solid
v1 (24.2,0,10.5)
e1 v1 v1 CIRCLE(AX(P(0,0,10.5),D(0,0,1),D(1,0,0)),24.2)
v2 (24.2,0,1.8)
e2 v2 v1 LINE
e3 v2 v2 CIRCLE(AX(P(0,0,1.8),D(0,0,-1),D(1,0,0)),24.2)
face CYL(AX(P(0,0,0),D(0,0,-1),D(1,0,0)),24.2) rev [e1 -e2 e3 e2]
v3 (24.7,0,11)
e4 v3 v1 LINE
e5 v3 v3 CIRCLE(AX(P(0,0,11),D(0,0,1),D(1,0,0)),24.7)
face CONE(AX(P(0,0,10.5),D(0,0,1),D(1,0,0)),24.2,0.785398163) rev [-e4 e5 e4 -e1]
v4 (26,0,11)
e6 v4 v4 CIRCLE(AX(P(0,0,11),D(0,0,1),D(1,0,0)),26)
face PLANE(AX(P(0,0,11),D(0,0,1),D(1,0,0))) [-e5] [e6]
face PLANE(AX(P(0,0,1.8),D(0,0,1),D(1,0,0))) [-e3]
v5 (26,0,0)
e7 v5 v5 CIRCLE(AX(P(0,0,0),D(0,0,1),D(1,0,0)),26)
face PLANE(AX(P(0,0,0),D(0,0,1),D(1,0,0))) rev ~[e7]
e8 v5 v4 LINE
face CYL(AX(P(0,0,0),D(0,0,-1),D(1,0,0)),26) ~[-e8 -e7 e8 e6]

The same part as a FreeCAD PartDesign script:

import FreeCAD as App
import Part
import Sketcher

V = App.Vector


def edges_at(feature, points):
    """Names of the edges that pass closest to the given points."""
    edges = feature.Shape.Edges
    near = lambda p: min(range(len(edges)), key=lambda i: edges[i].distToShape(Part.Vertex(*p))[0])
    return sorted({f"Edge{near(p) + 1}" for p in points})


def faces_at(feature, points):
    """Names of the faces that lie closest to the given points."""
    faces = feature.Shape.Faces
    near = lambda p: min(range(len(faces)), key=lambda i: faces[i].distToShape(Part.Vertex(*p))[0])
    return sorted({f"Face{near(p) + 1}" for p in points})

doc = App.newDocument("Part")
body = doc.addObject("PartDesign::Body", "Body")

sketch1 = doc.addObject("Sketcher::SketchObject", "Sketch")
body.addObject(sketch1)
sketch1.AttachmentSupport = (doc.XY_Plane, [""])
sketch1.MapMode = "FlatFace"
sketch1.addGeometry(Part.Circle(V(0, 0, 0), V(0, 0, 1), 26), False)
sketch1.addConstraint([
    Sketcher.Constraint("Coincident", 0, 3, -1, 1),
    Sketcher.Constraint("Diameter", 0, 52.0),
])
pad1 = doc.addObject("PartDesign::Pad", "Pad")
body.addObject(pad1)
pad1.Profile = sketch1
pad1.Length = 11
doc.recompute()

thickness = doc.addObject("PartDesign::Thickness", "Thickness")
body.addObject(thickness)
thickness.Base = (pad1, faces_at(pad1, [(0, 0, 11)]))
thickness.Value = 1.8
thickness.Reversed = True
thickness.Join = "Arc"
doc.recompute()

chamfer = doc.addObject("PartDesign::Chamfer", "Chamfer")
body.addObject(chamfer)
chamfer.Base = (thickness, edges_at(thickness, [(-24.2, 0, 11)]))
chamfer.Size = 0.5

doc.recompute()
